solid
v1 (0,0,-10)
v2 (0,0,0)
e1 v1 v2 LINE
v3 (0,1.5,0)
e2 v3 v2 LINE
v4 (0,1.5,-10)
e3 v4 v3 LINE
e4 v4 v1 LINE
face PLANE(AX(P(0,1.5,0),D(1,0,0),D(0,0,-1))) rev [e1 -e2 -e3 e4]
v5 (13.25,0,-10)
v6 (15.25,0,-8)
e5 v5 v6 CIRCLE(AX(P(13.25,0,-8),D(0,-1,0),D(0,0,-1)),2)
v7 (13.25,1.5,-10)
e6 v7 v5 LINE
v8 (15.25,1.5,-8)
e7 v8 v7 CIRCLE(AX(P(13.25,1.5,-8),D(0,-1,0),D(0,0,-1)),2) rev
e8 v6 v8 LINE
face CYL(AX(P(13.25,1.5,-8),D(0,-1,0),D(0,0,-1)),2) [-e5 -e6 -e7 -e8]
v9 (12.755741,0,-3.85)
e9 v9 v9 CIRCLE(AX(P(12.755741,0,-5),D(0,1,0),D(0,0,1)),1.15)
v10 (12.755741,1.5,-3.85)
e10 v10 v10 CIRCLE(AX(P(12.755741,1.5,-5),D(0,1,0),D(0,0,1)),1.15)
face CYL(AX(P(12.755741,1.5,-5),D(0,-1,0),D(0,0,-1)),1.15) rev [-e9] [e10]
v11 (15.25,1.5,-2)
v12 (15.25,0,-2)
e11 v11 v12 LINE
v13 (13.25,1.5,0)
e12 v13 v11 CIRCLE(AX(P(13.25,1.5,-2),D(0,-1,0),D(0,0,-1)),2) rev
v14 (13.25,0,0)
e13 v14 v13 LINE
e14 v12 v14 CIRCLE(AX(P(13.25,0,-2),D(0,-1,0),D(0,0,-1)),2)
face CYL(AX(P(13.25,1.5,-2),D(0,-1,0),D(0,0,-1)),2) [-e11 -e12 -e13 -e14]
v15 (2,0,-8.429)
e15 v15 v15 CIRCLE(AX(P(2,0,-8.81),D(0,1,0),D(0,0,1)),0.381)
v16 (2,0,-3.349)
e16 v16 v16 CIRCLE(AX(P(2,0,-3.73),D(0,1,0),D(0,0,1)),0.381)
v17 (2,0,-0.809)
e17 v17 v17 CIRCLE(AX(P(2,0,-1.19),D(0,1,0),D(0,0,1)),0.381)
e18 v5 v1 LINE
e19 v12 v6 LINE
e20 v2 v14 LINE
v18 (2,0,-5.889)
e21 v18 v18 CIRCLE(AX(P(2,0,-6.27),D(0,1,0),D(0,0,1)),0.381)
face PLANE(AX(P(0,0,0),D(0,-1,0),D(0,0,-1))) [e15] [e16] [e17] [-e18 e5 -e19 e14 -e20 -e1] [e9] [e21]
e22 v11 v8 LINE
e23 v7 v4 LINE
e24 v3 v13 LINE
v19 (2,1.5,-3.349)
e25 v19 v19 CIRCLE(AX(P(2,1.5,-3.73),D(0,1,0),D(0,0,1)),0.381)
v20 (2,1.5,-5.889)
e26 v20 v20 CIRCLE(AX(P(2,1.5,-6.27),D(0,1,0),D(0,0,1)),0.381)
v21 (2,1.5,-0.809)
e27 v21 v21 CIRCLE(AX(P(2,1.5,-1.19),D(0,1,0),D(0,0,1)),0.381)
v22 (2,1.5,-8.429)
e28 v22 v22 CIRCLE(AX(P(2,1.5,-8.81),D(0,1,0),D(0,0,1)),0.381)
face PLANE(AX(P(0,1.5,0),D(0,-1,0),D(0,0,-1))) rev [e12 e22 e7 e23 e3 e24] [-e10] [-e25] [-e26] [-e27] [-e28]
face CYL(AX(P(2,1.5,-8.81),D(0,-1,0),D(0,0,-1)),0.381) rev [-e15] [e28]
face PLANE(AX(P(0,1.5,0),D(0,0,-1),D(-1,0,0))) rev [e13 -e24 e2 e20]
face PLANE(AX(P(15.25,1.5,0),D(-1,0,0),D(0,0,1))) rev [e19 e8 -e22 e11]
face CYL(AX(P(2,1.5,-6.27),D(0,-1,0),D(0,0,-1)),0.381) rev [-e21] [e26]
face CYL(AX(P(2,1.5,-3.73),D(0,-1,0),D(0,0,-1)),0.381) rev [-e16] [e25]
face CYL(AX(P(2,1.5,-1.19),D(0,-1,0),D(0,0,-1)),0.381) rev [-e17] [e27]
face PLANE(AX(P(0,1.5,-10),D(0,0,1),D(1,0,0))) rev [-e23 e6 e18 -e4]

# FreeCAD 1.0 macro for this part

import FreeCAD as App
import Part
import Sketcher
Q = App.Units.Quantity


def edges_at(feature, points):
    """Names of the edges that pass closest to the given points."""
    edges = feature.Shape.Edges
    near = lambda p: min(range(len(edges)), key=lambda i: edges[i].distToShape(Part.Vertex(*p))[0])
    return sorted({f"Edge{near(p) + 1}" for p in points})


def add_polygon(sketch, points):
    """Adds a closed chain of lines whose ends are joined by coincident constraints."""
    first, n = sketch.GeometryCount, len(points)
    for a, b in zip(points, points[1:] + points[:1]):
        sketch.addGeometry(Part.LineSegment(App.Vector(*a, 0), App.Vector(*b, 0)), False)
    for i in range(n):
        sketch.addConstraint(Sketcher.Constraint("Coincident", first + i, 2, first + (i + 1) % n, 1))

doc = App.newDocument("Part")
params = doc.addObject("Spreadsheet::Sheet", "Params")
for row, (alias, value) in enumerate([
    ("sketch1_diameter", "2.3 mm"),
    ("sketch1_height", "10 mm"),
    ("sketch1_width", "15.25 mm"),
    ("pad1_length", "1.5 mm"),
    ("fillet_radius", "2 mm"),
], start=1):
    params.set(f"A{row}", alias)
    params.set(f"B{row}", "=" + value)
    params.setAlias(f"B{row}", alias)

body = doc.addObject("PartDesign::Body", "Body")

# Sketch on XZ plane
sketch1 = body.newObject("Sketcher::SketchObject", "Sketch")
sketch1.AttachmentSupport = (doc.getObject("XZ_Plane"), [""])
sketch1.MapMode = "FlatFace"
add_polygon(sketch1, [(0, -10), (0, 0), (15.25, 0), (15.25, -10)])  # lines 0-3
sketch1.addGeometry(Part.Circle(App.Vector(2, -1.19, 0), App.Vector(0, 0, 1), 0.38), False)  # 4
sketch1.addGeometry(Part.Circle(App.Vector(2, -3.73, 0), App.Vector(0, 0, 1), 0.38), False)  # 5
sketch1.addGeometry(Part.Circle(App.Vector(12.76, -5, 0), App.Vector(0, 0, 1), 1.15), False)  # 6
sketch1.addGeometry(Part.Circle(App.Vector(2, -6.27, 0), App.Vector(0, 0, 1), 0.38), False)  # 7
sketch1.addGeometry(Part.Circle(App.Vector(2, -8.81, 0), App.Vector(0, 0, 1), 0.38), False)  # 8
sketch1.addConstraint(Sketcher.Constraint("Vertical", 0))
sketch1.addConstraint(Sketcher.Constraint("Horizontal", 1))
sketch1.addConstraint(Sketcher.Constraint("Vertical", 2))
sketch1.addConstraint(Sketcher.Constraint("Horizontal", 3))
sketch1.addConstraint(Sketcher.Constraint("Coincident", 0, 2, -1, 1))
sketch1.addConstraint(Sketcher.Constraint("Equal", 4, 5))
sketch1.addConstraint(Sketcher.Constraint("Equal", 5, 7))
sketch1.addConstraint(Sketcher.Constraint("Equal", 7, 8))
sketch1.addConstraint(Sketcher.Constraint("Vertical", 4, 3, 5, 3))
sketch1.addConstraint(Sketcher.Constraint("Vertical", 5, 3, 7, 3))
sketch1.addConstraint(Sketcher.Constraint("Vertical", 7, 3, 8, 3))
sketch1.addConstraint(Sketcher.Constraint("Diameter", 6, Q("2.3 mm")))
sketch1.addConstraint(Sketcher.Constraint("DistanceY", 0, 1, 0, 2, Q("10 mm")))
sketch1.addConstraint(Sketcher.Constraint("Diameter", 4, Q("0.762 mm")))
sketch1.addConstraint(Sketcher.Constraint("DistanceX", -1, 1, 4, 3, Q("2 mm")))
sketch1.addConstraint(Sketcher.Constraint("DistanceY", 6, 3, -1, 1, Q("5 mm")))
sketch1.addConstraint(Sketcher.Constraint("DistanceX", 1, 1, 1, 2, Q("15.25 mm")))
sketch1.addConstraint(Sketcher.Constraint("DistanceY", 4, 3, -1, 1, Q("1.19 mm")))
sketch1.addConstraint(Sketcher.Constraint("DistanceY", 5, 3, -1, 1, Q("3.73 mm")))
sketch1.addConstraint(Sketcher.Constraint("DistanceY", 7, 3, -1, 1, Q("6.27 mm")))
sketch1.addConstraint(Sketcher.Constraint("DistanceY", 8, 3, -1, 1, Q("8.81 mm")))
sketch1.addConstraint(Sketcher.Constraint("DistanceX", -1, 1, 6, 3, Q("12.755741 mm")))
sketch1.setExpression("Constraints[15]", "Params.sketch1_diameter")
sketch1.setExpression("Constraints[16]", "Params.sketch1_height")
sketch1.setExpression("Constraints[20]", "Params.sketch1_width")
pad1 = body.newObject("PartDesign::Pad", "Pad")
pad1.Profile = sketch1
pad1.setExpression("Length", "Params.pad1_length")
pad1.Reversed = True
doc.recompute()

fillet = body.newObject("PartDesign::Fillet", "Fillet")
fillet.Base = (pad1, edges_at(pad1, [(15.25, 0.75, -10), (15.25, 0.75, 0)]))
fillet.setExpression("Radius", "Params.fillet_radius")

doc.recompute()
